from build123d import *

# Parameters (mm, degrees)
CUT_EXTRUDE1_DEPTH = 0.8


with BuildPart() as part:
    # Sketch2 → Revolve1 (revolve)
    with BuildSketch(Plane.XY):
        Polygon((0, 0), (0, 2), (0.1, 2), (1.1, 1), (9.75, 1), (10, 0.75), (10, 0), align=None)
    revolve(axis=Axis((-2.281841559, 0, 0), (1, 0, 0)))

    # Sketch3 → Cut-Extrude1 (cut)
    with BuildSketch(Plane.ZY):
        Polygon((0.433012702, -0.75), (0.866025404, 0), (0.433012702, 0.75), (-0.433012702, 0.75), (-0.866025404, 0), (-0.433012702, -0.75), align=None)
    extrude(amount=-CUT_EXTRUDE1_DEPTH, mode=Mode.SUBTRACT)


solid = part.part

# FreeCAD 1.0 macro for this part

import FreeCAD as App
import Part
import Sketcher
from FreeCAD import Vector
Q = App.Units.Quantity

doc = App.newDocument("Part")
params = doc.addObject("Spreadsheet::Sheet", "Params")
for row, (alias, value) in enumerate([
    ("sketch1_width", "10 mm"),
    ("sketch1_height", "2 mm"),
    ("sketch1_width2", "0.1 mm"),
    ("sketch1_width3", "8.65 mm"),
    ("revolution_angle", "360 deg"),
    ("pocket1_length", "0.8 mm"),
], start=1):
    params.set(f"A{row}", alias)
    params.set(f"B{row}", "=" + value)
    params.setAlias(f"B{row}", alias)

body = doc.addObject("PartDesign::Body", "Body")

# Sketch on XY plane
sketch1 = body.newObject("Sketcher::SketchObject", "Sketch")
sketch1.AttachmentSupport = (doc.getObject("XY_Plane"), [""])
sketch1.MapMode = "FlatFace"
sketch1.addGeometry(Part.LineSegment(Vector(0, 2, 0), Vector(0, 0, 0)), False)
sketch1.addGeometry(Part.LineSegment(Vector(0, 0, 0), Vector(10, 0, 0)), False)
sketch1.addGeometry(Part.LineSegment(Vector(10, 0, 0), Vector(10, 0.75, 0)), False)
sketch1.addGeometry(Part.LineSegment(Vector(10, 0.75, 0), Vector(9.75, 1, 0)), False)
sketch1.addGeometry(Part.LineSegment(Vector(9.75, 1, 0), Vector(1.1, 1, 0)), False)
sketch1.addGeometry(Part.LineSegment(Vector(1.1, 1, 0), Vector(0.1, 2, 0)), False)
sketch1.addGeometry(Part.LineSegment(Vector(0.1, 2, 0), Vector(0, 2, 0)), False)
sketch1.addConstraint(Sketcher.Constraint("Coincident", 0, 2, 1, 1))
sketch1.addConstraint(Sketcher.Constraint("Coincident", 1, 2, 2, 1))
sketch1.addConstraint(Sketcher.Constraint("Coincident", 2, 2, 3, 1))
sketch1.addConstraint(Sketcher.Constraint("Coincident", 3, 2, 4, 1))
sketch1.addConstraint(Sketcher.Constraint("Coincident", 4, 2, 5, 1))
sketch1.addConstraint(Sketcher.Constraint("Coincident", 5, 2, 6, 1))
sketch1.addConstraint(Sketcher.Constraint("Coincident", 6, 2, 0, 1))
sketch1.addConstraint(Sketcher.Constraint("Vertical", 0))
sketch1.addConstraint(Sketcher.Constraint("Horizontal", 1))
sketch1.addConstraint(Sketcher.Constraint("Vertical", 2))
sketch1.addConstraint(Sketcher.Constraint("Horizontal", 4))
sketch1.addConstraint(Sketcher.Constraint("Horizontal", 6))
sketch1.addConstraint(Sketcher.Constraint("Coincident", 0, 2, -1, 1))
sketch1.addConstraint(Sketcher.Constraint("Parallel", 3, 5))
sketch1.addConstraint(Sketcher.Constraint("DistanceX", 1, 1, 1, 2, Q("10 mm")))
sketch1.addConstraint(Sketcher.Constraint("DistanceY", 0, 2, 0, 1, Q("2 mm")))
sketch1.addConstraint(Sketcher.Constraint("Angle", 3, Q("135 deg")))
sketch1.addConstraint(Sketcher.Constraint("DistanceX", 6, 2, 6, 1, Q("0.1 mm")))
sketch1.addConstraint(Sketcher.Constraint("DistanceY", -1, 1, 3, 2, Q("1 mm")))
sketch1.addConstraint(Sketcher.Constraint("DistanceX", 4, 2, 4, 1, Q("8.65 mm")))
sketch1.setExpression("Constraints[14]", "Params.sketch1_width")
sketch1.setExpression("Constraints[15]", "Params.sketch1_height")
sketch1.setExpression("Constraints[17]", "Params.sketch1_width2")
sketch1.setExpression("Constraints[19]", "Params.sketch1_width3")
revolution = body.newObject("PartDesign::Revolution", "Revolution")
revolution.Profile = sketch1
revolution.ReferenceAxis = (sketch1, ["H_Axis"])
revolution.setExpression("Angle", "Params.revolution_angle")

# Sketch on YZ plane
sketch2 = body.newObject("Sketcher::SketchObject", "Sketch001")
sketch2.AttachmentSupport = (doc.getObject("YZ_Plane"), [""])
sketch2.MapMode = "FlatFace"
sketch2.addGeometry(Part.LineSegment(Vector(-0.75, 0.433013, 0), Vector(0, 0.866025, 0)), False)
sketch2.addGeometry(Part.LineSegment(Vector(0, 0.866025, 0), Vector(0.75, 0.433013, 0)), False)
sketch2.addGeometry(Part.LineSegment(Vector(0.75, 0.433013, 0), Vector(0.75, -0.433013, 0)), False)
sketch2.addGeometry(Part.LineSegment(Vector(0.75, -0.433013, 0), Vector(0, -0.866025, 0)), False)
sketch2.addGeometry(Part.LineSegment(Vector(0, -0.866025, 0), Vector(-0.75, -0.433013, 0)), False)
sketch2.addGeometry(Part.LineSegment(Vector(-0.75, -0.433013, 0), Vector(-0.75, 0.433013, 0)), False)
sketch2.addConstraint(Sketcher.Constraint("Coincident", 0, 2, 1, 1))
sketch2.addConstraint(Sketcher.Constraint("Coincident", 1, 2, 2, 1))
sketch2.addConstraint(Sketcher.Constraint("Coincident", 2, 2, 3, 1))
sketch2.addConstraint(Sketcher.Constraint("Coincident", 3, 2, 4, 1))
sketch2.addConstraint(Sketcher.Constraint("Coincident", 4, 2, 5, 1))
sketch2.addConstraint(Sketcher.Constraint("Coincident", 5, 2, 0, 1))
sketch2.addConstraint(Sketcher.Constraint("Vertical", 2))
sketch2.addConstraint(Sketcher.Constraint("Vertical", 5))
sketch2.addConstraint(Sketcher.Constraint("Symmetric", 0, 2, 3, 2, -1, 1))
sketch2.addConstraint(Sketcher.Constraint("Symmetric", 1, 2, 4, 2, -1, 1))
sketch2.addConstraint(Sketcher.Constraint("PointOnObject", 0, 2, -2))
sketch2.addConstraint(Sketcher.Constraint("Parallel", 0, 3))
sketch2.addConstraint(Sketcher.Constraint("Horizontal", 2, 2, 4, 2))
sketch2.addConstraint(Sketcher.Constraint("Angle", 0, Q("30 deg")))
sketch2.addConstraint(Sketcher.Constraint("DistanceX", 4, 2, 2, 2, Q("1.5 mm")))
sketch2.addConstraint(Sketcher.Constraint("DistanceY", 2, 2, 2, 1, Q("0.866025 mm")))
pocket1 = body.newObject("PartDesign::Pocket", "Pocket")
pocket1.Profile = sketch2
pocket1.setExpression("Length", "Params.pocket1_length")
pocket1.Reversed = True

doc.recompute()
